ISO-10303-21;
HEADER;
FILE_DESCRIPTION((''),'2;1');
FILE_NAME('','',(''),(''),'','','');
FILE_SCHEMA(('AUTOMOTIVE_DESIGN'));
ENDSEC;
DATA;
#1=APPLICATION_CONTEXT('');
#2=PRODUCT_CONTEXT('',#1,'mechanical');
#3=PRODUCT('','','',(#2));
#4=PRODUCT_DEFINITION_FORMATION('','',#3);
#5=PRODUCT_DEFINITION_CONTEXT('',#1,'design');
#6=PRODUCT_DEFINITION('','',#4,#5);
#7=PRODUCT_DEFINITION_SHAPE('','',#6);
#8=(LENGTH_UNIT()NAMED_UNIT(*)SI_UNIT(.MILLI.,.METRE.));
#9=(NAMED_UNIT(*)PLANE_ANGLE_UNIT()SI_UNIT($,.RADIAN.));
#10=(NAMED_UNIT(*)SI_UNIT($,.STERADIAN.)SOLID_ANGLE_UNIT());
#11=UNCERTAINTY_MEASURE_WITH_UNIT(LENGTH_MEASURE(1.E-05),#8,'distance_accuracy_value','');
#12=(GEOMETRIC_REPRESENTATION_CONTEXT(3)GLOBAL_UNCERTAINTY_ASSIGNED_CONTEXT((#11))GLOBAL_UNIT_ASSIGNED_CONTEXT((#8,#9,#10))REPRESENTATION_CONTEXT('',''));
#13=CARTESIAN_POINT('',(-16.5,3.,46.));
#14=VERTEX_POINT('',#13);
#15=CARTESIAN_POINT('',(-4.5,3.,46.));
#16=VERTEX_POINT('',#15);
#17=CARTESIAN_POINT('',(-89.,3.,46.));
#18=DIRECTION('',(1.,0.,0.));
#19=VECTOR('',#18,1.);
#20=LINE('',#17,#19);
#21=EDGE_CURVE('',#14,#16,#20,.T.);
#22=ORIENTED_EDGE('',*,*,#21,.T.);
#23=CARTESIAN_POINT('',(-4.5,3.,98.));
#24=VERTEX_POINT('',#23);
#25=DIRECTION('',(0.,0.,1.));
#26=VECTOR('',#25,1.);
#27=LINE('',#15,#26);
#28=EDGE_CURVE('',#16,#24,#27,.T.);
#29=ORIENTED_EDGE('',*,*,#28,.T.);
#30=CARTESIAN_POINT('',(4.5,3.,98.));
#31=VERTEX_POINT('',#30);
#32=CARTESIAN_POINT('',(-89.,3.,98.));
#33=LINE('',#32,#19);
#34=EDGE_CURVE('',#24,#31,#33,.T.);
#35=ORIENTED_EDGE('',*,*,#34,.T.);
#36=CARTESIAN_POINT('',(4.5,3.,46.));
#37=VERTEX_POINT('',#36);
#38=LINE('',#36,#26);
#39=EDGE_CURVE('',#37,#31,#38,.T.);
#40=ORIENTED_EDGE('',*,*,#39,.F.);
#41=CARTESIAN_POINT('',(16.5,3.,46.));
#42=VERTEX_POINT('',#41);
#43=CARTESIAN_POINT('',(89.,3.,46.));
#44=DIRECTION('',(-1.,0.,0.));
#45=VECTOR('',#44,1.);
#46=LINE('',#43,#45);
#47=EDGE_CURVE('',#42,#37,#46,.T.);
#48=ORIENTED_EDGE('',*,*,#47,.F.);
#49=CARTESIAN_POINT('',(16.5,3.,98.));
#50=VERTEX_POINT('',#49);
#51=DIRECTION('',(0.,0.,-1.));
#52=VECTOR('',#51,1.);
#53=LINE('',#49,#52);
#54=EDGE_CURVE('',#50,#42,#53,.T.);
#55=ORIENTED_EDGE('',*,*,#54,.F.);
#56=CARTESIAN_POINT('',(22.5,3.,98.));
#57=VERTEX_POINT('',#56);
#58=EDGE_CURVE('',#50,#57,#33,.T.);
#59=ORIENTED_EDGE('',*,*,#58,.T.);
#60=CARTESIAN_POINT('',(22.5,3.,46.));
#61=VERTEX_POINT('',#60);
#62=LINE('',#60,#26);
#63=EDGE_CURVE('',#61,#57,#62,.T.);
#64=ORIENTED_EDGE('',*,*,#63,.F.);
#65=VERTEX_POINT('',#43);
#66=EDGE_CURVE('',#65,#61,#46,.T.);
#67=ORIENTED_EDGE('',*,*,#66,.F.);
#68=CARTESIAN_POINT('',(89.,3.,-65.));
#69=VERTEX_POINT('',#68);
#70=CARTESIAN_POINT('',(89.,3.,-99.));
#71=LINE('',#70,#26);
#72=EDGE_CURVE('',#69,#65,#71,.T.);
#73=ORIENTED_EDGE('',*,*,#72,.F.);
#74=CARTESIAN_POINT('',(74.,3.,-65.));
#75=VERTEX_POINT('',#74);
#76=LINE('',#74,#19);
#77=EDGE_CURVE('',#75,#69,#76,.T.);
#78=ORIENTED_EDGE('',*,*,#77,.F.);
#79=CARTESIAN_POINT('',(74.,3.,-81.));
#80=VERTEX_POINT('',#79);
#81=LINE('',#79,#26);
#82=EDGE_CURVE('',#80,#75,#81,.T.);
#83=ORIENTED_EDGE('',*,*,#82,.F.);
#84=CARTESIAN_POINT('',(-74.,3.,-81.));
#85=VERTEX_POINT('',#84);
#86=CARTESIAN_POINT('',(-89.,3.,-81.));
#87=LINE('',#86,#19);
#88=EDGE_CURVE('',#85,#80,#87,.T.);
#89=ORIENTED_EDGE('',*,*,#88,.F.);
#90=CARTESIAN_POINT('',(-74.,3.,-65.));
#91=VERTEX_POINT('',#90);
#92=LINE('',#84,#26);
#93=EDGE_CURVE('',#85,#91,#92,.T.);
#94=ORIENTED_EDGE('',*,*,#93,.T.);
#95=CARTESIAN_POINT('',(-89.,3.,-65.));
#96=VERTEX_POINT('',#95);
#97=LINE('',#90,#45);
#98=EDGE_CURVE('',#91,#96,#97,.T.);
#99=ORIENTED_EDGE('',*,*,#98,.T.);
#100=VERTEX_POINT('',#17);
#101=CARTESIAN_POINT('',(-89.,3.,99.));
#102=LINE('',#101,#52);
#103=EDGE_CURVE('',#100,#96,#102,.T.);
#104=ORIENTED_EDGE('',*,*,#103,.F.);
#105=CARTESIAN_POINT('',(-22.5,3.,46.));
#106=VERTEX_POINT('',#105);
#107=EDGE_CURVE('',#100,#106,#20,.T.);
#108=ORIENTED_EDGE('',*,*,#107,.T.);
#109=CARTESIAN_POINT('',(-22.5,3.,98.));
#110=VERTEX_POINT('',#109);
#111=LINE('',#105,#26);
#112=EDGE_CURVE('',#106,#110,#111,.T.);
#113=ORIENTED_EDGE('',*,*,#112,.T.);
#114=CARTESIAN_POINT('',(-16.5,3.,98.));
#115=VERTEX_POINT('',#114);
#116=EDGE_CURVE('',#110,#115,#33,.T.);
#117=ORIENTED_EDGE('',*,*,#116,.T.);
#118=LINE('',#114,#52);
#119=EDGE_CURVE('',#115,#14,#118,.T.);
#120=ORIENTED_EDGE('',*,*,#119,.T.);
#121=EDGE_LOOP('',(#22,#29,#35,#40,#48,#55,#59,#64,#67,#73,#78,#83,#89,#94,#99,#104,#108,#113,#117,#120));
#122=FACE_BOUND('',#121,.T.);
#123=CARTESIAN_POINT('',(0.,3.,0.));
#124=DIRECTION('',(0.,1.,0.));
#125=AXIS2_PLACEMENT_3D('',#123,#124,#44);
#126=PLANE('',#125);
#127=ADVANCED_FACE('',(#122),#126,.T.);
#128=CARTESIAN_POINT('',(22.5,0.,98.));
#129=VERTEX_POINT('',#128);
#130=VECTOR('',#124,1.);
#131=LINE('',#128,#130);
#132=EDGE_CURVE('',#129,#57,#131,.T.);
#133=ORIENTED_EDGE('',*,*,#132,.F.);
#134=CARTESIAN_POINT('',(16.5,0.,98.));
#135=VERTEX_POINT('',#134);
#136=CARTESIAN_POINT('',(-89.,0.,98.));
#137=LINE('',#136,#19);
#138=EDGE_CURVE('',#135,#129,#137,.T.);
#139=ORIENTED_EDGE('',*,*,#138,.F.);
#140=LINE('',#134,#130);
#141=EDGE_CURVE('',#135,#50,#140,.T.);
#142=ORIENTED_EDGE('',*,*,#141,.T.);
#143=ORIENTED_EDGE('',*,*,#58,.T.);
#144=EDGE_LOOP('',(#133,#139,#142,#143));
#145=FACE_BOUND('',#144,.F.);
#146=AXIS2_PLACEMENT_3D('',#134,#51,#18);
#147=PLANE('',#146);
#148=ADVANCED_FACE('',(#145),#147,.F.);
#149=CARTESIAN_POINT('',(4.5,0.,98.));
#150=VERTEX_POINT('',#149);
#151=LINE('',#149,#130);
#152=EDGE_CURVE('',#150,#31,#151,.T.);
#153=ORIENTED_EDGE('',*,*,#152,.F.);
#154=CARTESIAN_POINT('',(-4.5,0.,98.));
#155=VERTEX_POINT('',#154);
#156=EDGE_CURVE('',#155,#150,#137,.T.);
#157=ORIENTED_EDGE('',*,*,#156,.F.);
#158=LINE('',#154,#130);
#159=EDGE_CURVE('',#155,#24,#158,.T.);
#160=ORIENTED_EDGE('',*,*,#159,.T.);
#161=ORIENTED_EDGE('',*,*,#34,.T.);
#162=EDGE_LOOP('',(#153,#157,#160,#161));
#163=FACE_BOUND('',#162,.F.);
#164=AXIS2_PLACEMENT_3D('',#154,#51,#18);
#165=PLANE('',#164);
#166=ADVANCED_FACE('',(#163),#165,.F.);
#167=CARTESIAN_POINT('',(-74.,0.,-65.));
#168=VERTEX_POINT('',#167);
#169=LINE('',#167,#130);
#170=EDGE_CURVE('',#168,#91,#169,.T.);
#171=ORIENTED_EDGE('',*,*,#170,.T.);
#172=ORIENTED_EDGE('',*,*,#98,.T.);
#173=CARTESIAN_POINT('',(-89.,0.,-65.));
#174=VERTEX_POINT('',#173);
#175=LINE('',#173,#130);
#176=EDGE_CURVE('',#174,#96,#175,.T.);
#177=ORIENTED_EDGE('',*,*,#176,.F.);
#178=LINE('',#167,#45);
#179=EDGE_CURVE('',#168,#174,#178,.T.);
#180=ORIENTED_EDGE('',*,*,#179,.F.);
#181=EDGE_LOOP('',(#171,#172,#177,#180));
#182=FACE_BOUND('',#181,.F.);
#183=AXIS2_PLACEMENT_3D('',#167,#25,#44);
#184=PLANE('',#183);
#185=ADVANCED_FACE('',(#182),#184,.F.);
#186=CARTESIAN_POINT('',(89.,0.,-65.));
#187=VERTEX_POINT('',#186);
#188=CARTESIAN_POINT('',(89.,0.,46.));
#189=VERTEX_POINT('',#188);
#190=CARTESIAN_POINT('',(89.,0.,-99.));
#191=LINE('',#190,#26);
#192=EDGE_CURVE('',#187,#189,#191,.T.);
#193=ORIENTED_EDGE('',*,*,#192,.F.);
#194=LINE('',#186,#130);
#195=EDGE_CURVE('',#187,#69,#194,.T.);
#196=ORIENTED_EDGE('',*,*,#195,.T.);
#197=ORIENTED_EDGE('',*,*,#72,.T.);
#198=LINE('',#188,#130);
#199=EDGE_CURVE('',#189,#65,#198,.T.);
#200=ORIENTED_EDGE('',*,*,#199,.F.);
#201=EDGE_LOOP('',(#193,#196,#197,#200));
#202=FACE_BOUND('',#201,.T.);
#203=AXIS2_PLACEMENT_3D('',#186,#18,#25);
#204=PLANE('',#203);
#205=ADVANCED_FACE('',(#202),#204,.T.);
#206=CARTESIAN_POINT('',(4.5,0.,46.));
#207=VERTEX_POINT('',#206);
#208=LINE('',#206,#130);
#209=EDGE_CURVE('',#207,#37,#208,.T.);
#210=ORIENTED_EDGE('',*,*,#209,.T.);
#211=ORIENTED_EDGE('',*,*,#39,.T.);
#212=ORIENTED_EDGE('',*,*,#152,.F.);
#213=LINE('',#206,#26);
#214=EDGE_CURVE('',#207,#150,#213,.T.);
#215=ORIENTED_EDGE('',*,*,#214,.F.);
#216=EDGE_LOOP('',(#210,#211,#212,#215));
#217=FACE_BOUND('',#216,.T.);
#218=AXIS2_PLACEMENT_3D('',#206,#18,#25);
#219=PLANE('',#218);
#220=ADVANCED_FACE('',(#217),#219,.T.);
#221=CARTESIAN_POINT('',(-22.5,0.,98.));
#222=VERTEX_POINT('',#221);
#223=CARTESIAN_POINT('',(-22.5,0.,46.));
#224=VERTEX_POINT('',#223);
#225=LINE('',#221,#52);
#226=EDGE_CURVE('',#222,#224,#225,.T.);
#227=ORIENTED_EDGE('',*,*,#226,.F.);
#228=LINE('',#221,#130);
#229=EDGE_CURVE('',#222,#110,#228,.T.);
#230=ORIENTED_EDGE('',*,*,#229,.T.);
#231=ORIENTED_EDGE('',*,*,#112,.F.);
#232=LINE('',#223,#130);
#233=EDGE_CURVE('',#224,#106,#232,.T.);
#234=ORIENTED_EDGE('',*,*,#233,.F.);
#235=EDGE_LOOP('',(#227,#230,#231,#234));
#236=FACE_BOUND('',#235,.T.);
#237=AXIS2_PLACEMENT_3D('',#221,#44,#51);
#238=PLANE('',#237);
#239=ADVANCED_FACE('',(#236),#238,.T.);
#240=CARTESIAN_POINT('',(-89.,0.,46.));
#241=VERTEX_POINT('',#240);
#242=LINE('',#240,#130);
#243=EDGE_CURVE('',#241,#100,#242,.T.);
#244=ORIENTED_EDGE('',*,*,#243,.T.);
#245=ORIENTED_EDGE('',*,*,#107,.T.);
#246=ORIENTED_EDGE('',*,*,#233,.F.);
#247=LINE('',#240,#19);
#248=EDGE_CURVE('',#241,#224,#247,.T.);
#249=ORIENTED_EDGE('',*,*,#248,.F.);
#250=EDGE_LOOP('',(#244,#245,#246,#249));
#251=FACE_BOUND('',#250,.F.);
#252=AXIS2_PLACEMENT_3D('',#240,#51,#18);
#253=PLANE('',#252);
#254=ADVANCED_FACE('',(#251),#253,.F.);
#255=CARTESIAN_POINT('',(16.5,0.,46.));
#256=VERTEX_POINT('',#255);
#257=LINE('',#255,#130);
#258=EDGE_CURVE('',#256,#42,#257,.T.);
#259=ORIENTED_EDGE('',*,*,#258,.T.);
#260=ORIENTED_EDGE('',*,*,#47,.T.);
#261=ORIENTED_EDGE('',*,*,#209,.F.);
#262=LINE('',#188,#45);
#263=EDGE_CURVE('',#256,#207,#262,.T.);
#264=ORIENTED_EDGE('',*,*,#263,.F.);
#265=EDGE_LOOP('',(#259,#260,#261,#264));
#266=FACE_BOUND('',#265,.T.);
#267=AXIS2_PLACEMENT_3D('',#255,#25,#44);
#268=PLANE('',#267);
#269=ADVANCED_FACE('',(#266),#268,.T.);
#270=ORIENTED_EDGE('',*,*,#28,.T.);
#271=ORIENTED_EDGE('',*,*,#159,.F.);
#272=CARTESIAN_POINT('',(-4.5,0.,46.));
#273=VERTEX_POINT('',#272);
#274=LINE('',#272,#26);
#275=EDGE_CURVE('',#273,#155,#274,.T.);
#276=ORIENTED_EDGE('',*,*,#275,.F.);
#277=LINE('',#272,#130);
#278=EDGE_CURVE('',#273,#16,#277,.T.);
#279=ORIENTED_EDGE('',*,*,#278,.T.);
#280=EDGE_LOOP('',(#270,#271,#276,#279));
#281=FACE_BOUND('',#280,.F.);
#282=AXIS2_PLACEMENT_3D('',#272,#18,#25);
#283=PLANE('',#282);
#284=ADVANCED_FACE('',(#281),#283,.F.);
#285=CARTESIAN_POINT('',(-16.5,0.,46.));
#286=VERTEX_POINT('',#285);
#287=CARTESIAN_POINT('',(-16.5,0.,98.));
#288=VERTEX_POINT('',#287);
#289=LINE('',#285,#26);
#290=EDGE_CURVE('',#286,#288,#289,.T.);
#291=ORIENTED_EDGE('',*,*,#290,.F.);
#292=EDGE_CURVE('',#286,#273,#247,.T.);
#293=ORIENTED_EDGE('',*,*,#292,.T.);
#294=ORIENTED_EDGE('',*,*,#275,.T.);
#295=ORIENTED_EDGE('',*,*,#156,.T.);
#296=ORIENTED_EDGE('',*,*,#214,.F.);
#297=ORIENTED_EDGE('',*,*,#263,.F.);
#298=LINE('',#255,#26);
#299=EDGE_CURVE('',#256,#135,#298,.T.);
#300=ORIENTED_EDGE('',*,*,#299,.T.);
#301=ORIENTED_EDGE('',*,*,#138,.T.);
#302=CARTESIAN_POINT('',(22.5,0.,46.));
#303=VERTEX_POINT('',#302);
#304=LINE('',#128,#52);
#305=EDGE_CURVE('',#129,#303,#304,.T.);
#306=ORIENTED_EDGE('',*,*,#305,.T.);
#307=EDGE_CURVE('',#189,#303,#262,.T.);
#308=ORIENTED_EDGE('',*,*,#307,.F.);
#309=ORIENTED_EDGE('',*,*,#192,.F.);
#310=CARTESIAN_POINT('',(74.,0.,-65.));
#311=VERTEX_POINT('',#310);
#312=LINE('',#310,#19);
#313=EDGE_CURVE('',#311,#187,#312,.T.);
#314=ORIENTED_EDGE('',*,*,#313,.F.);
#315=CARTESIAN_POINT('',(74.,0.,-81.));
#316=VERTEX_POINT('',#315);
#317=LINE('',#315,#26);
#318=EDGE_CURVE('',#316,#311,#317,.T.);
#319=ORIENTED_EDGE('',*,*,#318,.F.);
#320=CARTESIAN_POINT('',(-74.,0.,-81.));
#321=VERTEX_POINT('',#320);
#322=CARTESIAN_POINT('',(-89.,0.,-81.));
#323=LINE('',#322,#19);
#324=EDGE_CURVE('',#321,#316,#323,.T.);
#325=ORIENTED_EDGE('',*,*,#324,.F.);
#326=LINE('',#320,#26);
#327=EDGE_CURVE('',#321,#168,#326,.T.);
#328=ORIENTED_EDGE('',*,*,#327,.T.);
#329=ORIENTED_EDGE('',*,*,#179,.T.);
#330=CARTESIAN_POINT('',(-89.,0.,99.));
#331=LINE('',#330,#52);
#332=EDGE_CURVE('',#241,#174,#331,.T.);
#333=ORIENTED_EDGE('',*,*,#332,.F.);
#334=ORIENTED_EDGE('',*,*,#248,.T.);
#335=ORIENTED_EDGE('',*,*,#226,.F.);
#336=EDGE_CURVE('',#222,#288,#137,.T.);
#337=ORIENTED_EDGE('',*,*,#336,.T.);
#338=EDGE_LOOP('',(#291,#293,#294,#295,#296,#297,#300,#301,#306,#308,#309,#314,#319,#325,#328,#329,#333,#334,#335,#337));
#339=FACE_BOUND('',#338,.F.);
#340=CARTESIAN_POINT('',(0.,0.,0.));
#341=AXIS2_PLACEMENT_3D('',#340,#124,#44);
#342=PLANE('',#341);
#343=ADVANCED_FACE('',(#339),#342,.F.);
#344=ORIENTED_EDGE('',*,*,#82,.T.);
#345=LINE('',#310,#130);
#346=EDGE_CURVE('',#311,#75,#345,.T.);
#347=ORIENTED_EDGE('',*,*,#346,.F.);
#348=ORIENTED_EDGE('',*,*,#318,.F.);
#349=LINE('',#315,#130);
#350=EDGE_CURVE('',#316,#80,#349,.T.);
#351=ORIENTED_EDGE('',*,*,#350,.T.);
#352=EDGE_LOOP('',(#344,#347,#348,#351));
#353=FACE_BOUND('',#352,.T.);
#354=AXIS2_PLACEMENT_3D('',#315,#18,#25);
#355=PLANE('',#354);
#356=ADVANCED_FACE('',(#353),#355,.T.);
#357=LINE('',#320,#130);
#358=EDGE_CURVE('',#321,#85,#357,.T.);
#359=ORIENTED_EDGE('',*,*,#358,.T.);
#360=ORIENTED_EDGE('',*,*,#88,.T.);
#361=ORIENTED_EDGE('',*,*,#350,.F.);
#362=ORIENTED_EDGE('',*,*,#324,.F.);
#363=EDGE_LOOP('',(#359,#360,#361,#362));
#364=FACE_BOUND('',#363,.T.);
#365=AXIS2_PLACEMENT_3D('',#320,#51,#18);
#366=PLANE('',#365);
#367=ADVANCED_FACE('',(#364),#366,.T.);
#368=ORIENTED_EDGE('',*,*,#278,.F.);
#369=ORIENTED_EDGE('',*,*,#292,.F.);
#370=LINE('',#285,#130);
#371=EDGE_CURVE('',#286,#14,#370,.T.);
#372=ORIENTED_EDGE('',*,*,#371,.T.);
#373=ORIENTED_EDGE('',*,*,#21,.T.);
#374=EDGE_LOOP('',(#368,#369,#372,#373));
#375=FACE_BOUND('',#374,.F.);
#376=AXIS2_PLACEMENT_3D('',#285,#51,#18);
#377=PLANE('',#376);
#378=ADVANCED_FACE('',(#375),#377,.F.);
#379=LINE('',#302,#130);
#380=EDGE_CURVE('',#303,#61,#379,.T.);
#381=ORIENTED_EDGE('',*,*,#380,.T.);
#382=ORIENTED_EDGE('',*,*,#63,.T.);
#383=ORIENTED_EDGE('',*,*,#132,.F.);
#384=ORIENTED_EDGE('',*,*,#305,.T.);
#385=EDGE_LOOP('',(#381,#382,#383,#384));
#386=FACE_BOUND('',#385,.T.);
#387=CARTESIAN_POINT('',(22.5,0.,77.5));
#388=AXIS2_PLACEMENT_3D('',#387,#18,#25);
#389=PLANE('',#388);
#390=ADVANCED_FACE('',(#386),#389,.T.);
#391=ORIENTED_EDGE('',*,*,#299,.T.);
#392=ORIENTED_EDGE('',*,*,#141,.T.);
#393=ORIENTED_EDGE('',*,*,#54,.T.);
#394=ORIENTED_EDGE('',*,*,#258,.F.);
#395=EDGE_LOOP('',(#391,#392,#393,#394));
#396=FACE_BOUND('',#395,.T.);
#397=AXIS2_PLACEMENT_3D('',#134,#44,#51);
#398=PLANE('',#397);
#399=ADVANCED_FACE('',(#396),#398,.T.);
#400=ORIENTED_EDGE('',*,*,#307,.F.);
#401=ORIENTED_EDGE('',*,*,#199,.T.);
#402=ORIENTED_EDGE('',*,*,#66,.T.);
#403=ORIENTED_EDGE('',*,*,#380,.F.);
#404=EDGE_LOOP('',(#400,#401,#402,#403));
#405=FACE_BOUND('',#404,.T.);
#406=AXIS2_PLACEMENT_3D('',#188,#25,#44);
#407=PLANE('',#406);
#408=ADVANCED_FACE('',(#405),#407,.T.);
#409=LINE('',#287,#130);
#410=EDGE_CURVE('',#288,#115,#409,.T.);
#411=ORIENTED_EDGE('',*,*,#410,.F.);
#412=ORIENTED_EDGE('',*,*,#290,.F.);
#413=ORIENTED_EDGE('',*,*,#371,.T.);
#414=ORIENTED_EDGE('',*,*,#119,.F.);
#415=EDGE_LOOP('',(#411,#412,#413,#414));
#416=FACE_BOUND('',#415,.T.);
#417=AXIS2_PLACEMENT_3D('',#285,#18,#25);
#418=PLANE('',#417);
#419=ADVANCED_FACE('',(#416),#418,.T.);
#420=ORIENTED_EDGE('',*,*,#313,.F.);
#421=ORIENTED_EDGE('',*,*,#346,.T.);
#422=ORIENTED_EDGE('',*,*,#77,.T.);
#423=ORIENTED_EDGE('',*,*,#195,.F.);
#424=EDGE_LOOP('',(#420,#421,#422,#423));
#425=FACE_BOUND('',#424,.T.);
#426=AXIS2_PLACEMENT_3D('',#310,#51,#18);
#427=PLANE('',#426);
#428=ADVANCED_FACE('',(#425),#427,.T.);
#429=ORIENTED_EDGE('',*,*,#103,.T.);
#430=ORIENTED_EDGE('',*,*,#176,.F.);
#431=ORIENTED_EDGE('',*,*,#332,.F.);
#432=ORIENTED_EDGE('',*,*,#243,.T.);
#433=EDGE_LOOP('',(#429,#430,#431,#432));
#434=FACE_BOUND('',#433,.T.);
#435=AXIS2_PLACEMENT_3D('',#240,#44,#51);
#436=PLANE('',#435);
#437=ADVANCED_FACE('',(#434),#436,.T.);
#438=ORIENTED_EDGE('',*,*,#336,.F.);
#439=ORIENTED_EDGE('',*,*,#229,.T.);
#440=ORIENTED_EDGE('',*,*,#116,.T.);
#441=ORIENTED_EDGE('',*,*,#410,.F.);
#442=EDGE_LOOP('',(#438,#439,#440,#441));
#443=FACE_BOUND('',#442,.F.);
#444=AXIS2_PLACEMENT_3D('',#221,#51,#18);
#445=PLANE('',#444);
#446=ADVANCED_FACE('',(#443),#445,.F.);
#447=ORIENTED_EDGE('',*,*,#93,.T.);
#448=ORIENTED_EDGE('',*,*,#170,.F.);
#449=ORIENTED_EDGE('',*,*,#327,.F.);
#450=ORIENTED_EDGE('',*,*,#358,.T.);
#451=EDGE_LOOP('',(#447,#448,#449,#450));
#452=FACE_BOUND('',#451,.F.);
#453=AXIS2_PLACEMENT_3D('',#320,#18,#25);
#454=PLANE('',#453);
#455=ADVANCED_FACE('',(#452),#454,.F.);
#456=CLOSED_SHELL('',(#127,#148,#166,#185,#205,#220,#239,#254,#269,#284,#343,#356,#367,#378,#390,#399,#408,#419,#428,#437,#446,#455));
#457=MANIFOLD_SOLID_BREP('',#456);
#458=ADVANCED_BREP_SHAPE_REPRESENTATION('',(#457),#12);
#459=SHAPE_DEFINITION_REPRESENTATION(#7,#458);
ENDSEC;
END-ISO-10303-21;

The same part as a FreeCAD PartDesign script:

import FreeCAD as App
import Part
import Sketcher
from FreeCAD import Vector
Q = App.Units.Quantity


def add_polygon(sketch, points):
    """Adds a closed chain of lines whose ends are joined by coincident constraints."""
    first, n = sketch.GeometryCount, len(points)
    for a, b in zip(points, points[1:] + points[:1]):
        sketch.addGeometry(Part.LineSegment(App.Vector(*a, 0), App.Vector(*b, 0)), False)
    for i in range(n):
        sketch.addConstraint(Sketcher.Constraint("Coincident", first + i, 2, first + (i + 1) % n, 1))

doc = App.newDocument("Part")
params = doc.addObject("Spreadsheet::Sheet", "Params")
for row, (alias, value) in enumerate([
    ("sketch1_width", "15 mm"),
    ("sketch1_width2", "9 mm"),
    ("sketch1_height", "16 mm"),
    ("sketch1_width3", "6 mm"),
    ("sketch1_width4", "148 mm"),
    ("pad1_length", "3 mm"),
], start=1):
    params.set(f"A{row}", alias)
    params.set(f"B{row}", "=" + value)
    params.setAlias(f"B{row}", alias)

body = doc.addObject("PartDesign::Body", "Body")

# Sketch on XZ plane
sketch1 = body.newObject("Sketcher::SketchObject", "Sketch")
sketch1.AttachmentSupport = (doc.getObject("XZ_Plane"), [""])
sketch1.MapMode = "FlatFace"
add_polygon(sketch1, [(16, 98), (22, 98), (22, 46), (89, 46), (89, -65), (74, -65), (74, -81), (-74, -81), (-74, -65), (-89, -65), (-89, 46), (-22, 46), (-22, 98), (-16, 98), (-16, 46), (-4, 46), (-4, 98), (4, 98), (4, 46), (16, 46)])  # lines 0-19
sketch1.addConstraint([
    Sketcher.Constraint("Horizontal", 0),
    Sketcher.Constraint("Vertical", 1),
    Sketcher.Constraint("Horizontal", 2),
    Sketcher.Constraint("Vertical", 3),
    Sketcher.Constraint("Horizontal", 4),
    Sketcher.Constraint("Vertical", 5),
    Sketcher.Constraint("Horizontal", 6),
    Sketcher.Constraint("Vertical", 7),
    Sketcher.Constraint("Horizontal", 8),
    Sketcher.Constraint("Vertical", 9),
    Sketcher.Constraint("Horizontal", 10),
    Sketcher.Constraint("Vertical", 11),
    Sketcher.Constraint("Horizontal", 12),
    Sketcher.Constraint("Vertical", 13),
    Sketcher.Constraint("Horizontal", 14),
    Sketcher.Constraint("Vertical", 15),
    Sketcher.Constraint("Horizontal", 16),
    Sketcher.Constraint("Vertical", 17),
    Sketcher.Constraint("Horizontal", 18),
    Sketcher.Constraint("Vertical", 19),
    Sketcher.Constraint("Symmetric", 4, 2, 7, 2, -2),
    Sketcher.Constraint("Symmetric", 2, 2, 9, 2, -2),
    Sketcher.Constraint("Symmetric", 0, 2, 11, 2, -2),
    Sketcher.Constraint("Symmetric", 14, 2, 17, 2, -2),
    Sketcher.Constraint("Horizontal", 10, 2, 13, 2),
    Sketcher.Constraint("Horizontal", 12, 2, 15, 2),
    Sketcher.Constraint("Equal", 0, 12),
    Sketcher.Constraint("DistanceX", 4, 2, 4, 1, Q("15 mm")),
    Sketcher.Constraint("DistanceX", 16, 1, 16, 2, Q("9 mm")),
    Sketcher.Constraint("DistanceY", 5, 2, 5, 1, Q("16 mm")),
    Sketcher.Constraint("DistanceX", 10, 2, 14, 2, Q("18 mm")),
    Sketcher.Constraint("DistanceX", 0, 1, 0, 2, Q("6 mm")),
    Sketcher.Constraint("DistanceX", 6, 2, 6, 1, Q("148 mm")),
    Sketcher.Constraint("DistanceY", 1, 2, 1, 1, Q("52 mm")),
    Sketcher.Constraint("DistanceY", 3, 2, 3, 1, Q("111 mm")),
    Sketcher.Constraint("DistanceY", -1, 1, 0, 2, Q("98 mm")),
])
sketch1.setExpression("Constraints[47]", "Params.sketch1_width")
sketch1.setExpression("Constraints[48]", "Params.sketch1_width2")
sketch1.setExpression("Constraints[49]", "Params.sketch1_height")
sketch1.setExpression("Constraints[51]", "Params.sketch1_width3")
sketch1.setExpression("Constraints[52]", "Params.sketch1_width4")
pad1 = body.newObject("PartDesign::Pad", "Pad")
pad1.Profile = sketch1
pad1.setExpression("Length", "Params.pad1_length")
pad1.Reversed = True

doc.recompute()
